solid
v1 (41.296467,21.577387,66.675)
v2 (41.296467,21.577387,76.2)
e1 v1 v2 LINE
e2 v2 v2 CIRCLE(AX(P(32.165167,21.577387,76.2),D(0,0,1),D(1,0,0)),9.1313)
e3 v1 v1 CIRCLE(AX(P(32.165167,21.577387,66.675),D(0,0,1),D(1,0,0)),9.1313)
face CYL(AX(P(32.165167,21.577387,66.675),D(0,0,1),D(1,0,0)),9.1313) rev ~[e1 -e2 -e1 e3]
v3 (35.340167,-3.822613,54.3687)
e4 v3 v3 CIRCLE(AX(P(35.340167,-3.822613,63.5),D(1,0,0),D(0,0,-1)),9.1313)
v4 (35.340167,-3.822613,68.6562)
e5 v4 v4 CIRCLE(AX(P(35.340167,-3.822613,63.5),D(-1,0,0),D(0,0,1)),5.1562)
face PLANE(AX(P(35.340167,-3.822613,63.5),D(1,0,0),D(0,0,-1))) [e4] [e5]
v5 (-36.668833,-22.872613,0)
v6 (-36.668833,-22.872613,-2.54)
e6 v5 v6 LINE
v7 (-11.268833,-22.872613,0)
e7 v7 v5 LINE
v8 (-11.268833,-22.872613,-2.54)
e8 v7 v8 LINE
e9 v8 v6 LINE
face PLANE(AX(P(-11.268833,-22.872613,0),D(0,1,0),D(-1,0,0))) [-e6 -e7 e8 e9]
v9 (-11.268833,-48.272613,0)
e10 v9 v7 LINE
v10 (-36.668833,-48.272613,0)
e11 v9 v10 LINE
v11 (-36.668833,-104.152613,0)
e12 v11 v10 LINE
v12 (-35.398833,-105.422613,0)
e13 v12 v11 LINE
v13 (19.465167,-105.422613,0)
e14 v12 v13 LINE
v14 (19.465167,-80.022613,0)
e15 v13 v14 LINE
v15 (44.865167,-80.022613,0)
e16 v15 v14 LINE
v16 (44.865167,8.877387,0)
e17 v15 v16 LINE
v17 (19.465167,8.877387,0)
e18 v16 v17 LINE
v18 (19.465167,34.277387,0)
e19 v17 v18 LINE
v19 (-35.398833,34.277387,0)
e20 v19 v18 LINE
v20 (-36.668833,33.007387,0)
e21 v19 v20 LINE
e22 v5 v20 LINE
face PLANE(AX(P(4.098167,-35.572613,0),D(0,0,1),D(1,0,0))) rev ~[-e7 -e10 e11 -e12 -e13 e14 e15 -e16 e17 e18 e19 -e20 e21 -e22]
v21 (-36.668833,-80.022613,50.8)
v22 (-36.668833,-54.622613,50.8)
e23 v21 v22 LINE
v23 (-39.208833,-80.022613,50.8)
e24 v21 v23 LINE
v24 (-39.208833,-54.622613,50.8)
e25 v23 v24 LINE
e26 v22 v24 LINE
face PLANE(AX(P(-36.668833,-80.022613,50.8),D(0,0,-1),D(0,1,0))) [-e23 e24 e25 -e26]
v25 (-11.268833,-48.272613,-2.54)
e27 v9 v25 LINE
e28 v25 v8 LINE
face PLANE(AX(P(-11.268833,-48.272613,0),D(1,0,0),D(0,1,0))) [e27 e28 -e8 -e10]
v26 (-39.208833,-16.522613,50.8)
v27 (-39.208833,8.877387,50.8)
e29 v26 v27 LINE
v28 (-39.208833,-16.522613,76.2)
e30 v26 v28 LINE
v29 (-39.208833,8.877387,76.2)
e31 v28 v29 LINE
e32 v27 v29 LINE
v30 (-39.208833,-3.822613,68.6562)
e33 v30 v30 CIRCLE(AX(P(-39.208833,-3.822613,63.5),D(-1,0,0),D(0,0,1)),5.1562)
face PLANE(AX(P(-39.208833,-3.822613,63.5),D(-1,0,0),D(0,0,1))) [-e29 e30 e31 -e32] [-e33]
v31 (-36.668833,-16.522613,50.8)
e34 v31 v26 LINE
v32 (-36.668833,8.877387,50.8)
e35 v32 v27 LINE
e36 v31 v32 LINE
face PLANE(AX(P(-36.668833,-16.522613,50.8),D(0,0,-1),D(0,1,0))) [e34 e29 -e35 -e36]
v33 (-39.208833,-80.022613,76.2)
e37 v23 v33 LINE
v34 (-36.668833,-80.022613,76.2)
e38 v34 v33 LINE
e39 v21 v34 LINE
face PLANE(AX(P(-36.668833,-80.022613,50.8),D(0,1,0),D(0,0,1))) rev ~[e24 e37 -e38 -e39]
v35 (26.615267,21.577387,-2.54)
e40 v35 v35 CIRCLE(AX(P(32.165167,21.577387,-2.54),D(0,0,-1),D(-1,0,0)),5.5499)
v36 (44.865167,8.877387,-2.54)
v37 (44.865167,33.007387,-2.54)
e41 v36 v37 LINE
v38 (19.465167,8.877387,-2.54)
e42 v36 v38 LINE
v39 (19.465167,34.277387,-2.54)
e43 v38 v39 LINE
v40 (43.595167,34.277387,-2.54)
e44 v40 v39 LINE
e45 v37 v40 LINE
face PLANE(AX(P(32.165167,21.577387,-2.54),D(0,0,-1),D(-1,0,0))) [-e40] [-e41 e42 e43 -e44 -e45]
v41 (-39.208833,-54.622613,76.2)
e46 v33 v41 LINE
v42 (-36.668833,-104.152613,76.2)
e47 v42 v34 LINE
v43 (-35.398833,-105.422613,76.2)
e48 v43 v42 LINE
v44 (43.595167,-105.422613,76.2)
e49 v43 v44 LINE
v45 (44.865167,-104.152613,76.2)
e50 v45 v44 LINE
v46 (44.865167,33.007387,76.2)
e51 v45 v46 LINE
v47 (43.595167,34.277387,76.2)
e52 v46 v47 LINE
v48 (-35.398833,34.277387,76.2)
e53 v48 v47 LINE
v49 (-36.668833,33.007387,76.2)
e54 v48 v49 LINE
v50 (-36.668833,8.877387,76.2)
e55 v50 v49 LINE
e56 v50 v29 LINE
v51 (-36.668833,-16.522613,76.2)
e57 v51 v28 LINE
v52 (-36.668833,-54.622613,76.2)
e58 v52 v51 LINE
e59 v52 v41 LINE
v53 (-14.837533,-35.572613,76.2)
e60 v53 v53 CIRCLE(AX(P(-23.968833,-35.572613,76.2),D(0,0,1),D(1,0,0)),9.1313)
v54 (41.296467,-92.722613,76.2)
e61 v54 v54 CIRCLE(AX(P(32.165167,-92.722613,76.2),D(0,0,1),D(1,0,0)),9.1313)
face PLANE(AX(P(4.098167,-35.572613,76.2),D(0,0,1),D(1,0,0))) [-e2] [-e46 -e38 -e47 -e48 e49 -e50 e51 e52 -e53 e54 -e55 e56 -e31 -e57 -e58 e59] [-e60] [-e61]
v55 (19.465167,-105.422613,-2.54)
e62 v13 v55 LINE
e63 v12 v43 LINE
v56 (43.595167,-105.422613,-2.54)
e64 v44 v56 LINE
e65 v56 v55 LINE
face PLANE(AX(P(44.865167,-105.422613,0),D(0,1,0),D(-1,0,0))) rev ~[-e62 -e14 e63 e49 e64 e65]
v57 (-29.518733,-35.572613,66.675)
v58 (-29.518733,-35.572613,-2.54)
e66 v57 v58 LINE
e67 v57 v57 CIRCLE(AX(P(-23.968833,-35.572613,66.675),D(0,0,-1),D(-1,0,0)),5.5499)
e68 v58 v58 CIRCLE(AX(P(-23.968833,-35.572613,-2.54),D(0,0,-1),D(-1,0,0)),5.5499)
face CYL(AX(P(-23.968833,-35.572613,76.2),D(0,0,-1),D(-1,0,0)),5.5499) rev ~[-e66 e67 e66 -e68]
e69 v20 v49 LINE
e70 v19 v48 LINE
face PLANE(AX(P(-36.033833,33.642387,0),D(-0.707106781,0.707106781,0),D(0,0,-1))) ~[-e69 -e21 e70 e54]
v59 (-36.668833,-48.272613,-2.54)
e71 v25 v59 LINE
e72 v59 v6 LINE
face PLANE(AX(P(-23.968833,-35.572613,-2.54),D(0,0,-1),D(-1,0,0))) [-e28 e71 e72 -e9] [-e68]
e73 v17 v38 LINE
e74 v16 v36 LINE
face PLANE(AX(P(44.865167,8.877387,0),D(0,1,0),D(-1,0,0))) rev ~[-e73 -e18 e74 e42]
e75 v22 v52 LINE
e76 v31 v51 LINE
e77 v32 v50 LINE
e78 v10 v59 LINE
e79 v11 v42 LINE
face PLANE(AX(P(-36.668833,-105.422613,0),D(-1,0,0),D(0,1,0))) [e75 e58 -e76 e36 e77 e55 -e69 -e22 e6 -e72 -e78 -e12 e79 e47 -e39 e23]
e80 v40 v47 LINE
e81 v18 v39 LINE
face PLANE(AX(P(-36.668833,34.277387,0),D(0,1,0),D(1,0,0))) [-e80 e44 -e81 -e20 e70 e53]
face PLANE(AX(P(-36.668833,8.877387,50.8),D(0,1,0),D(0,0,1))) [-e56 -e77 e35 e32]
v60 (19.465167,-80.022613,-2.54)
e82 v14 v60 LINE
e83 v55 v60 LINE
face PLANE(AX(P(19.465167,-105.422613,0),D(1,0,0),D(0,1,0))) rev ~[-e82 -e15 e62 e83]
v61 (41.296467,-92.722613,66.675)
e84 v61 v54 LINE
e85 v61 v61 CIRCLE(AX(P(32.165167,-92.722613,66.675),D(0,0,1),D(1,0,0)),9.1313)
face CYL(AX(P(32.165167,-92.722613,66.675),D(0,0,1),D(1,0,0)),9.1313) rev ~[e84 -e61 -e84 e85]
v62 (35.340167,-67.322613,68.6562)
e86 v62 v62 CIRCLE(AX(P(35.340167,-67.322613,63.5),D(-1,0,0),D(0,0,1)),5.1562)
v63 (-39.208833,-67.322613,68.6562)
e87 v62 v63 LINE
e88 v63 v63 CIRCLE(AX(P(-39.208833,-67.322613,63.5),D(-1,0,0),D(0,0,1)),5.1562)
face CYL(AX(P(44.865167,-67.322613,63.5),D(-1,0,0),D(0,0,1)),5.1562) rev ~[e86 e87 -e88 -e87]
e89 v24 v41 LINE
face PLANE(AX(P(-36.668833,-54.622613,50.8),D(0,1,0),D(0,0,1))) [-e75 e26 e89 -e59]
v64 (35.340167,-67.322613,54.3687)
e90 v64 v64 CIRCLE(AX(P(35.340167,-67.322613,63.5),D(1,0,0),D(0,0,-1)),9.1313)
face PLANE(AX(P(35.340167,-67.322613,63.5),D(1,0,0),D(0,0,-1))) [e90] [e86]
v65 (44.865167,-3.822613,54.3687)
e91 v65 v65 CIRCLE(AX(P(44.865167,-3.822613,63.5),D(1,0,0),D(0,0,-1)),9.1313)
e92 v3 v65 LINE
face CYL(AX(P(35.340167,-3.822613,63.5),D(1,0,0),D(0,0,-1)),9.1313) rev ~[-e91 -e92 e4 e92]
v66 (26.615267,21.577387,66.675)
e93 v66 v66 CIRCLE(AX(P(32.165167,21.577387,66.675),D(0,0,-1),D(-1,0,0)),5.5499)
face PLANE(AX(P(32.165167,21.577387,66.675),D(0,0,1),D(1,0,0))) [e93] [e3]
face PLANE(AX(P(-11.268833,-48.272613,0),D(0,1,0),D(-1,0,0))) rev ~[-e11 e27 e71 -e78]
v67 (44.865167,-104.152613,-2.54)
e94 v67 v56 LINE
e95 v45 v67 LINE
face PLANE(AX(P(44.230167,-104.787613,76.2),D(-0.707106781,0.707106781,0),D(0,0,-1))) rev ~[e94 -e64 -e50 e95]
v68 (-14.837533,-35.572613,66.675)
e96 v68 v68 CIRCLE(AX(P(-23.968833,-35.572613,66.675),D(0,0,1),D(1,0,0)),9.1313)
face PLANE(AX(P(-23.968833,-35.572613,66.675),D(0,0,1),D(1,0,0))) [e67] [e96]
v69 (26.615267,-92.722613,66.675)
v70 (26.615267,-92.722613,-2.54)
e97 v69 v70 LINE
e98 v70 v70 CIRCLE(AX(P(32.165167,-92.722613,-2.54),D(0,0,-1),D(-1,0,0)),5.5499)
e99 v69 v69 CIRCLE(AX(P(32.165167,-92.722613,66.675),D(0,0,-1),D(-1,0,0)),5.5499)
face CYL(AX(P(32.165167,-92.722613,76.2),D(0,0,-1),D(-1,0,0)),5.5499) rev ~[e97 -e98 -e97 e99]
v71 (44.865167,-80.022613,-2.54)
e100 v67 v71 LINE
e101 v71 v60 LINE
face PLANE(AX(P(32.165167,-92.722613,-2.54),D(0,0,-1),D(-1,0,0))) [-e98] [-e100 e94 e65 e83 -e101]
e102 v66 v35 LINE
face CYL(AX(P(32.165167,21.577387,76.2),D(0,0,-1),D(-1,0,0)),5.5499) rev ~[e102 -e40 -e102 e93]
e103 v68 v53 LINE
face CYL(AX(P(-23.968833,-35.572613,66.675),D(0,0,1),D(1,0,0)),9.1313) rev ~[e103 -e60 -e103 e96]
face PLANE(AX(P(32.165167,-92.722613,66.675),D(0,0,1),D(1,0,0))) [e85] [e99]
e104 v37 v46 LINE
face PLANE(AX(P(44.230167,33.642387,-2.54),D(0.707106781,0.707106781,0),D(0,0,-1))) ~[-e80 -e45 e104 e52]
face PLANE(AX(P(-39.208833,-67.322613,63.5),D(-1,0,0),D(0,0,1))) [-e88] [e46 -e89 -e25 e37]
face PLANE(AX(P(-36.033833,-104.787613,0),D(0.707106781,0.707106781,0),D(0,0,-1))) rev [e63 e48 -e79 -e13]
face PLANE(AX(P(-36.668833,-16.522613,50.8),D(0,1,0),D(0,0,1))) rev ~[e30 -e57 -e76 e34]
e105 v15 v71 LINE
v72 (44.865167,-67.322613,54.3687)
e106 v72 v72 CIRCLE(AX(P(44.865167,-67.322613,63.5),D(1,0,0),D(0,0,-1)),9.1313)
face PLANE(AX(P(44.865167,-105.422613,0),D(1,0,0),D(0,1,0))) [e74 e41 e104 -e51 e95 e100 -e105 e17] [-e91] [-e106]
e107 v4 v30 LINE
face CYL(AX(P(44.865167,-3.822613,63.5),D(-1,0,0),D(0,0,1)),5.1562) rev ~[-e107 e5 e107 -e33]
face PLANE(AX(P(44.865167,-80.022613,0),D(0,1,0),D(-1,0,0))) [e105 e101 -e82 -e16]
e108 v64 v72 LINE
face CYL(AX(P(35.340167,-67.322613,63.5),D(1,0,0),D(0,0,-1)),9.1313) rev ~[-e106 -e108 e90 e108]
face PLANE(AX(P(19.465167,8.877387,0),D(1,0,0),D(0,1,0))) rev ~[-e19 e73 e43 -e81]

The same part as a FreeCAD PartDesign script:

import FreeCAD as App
import Part
import Sketcher

V = App.Vector
Q = App.Units.Quantity


def edges_at(feature, points):
    """Names of the edges that pass closest to the given points."""
    edges = feature.Shape.Edges
    near = lambda p: min(range(len(edges)), key=lambda i: edges[i].distToShape(Part.Vertex(*p))[0])
    return sorted({f"Edge{near(p) + 1}" for p in points})


def add_polygon(sketch, points):
    """Adds a closed chain of lines whose ends are joined by coincident constraints."""
    first, n = sketch.GeometryCount, len(points)
    for a, b in zip(points, points[1:] + points[:1]):
        sketch.addGeometry(Part.LineSegment(App.Vector(*a, 0), App.Vector(*b, 0)), False)
    for i in range(n):
        sketch.addConstraint(Sketcher.Constraint("Coincident", first + i, 2, first + (i + 1) % n, 1))

doc = App.newDocument("Part")
body = doc.addObject("PartDesign::Body", "Body")

# Sketch on XY plane
sketch1 = doc.addObject("Sketcher::SketchObject", "Sketch")
body.addObject(sketch1)
sketch1.AttachmentSupport = (doc.XY_Plane, [""])
sketch1.MapMode = "FlatFace"
add_polygon(sketch1, [(-37, 34), (-37, -105), (45, -105), (45, 34)])  # lines 0-3
sketch1.addConstraint(Sketcher.Constraint("Vertical", 0))
sketch1.addConstraint(Sketcher.Constraint("Horizontal", 1))
sketch1.addConstraint(Sketcher.Constraint("Vertical", 2))
sketch1.addConstraint(Sketcher.Constraint("Horizontal", 3))
sketch1.addConstraint(Sketcher.Constraint("DistanceY", 0, 2, 0, 1, Q("5.5 in")))
sketch1.addConstraint(Sketcher.Constraint("DistanceX", 1, 1, 1, 2, Q("3.21 in")))
sketch1.addConstraint(Sketcher.Constraint("DistanceX", 0, 2, -1, 1, Q("36.668833 mm")))
sketch1.addConstraint(Sketcher.Constraint("DistanceY", 0, 2, -1, 1, Q("105.422613 mm")))
pad1 = doc.addObject("PartDesign::Pad", "Pad")
body.addObject(pad1)
pad1.Profile = sketch1
pad1.Length = Q("3 in")

# Sketch on XY plane
sketch2 = doc.addObject("Sketcher::SketchObject", "Sketch001")
body.addObject(sketch2)
sketch2.AttachmentSupport = (doc.XY_Plane, [""])
sketch2.MapMode = "FlatFace"
add_polygon(sketch2, [(45, -80), (45, -105), (19, -105), (19, -80)])  # lines 0-3
add_polygon(sketch2, [(45, 34), (45, 9), (19, 9), (19, 34)])  # lines 4-7
add_polygon(sketch2, [(-11, -23), (-11, -48), (-37, -48), (-37, -23)])  # lines 8-11
sketch2.addConstraint(Sketcher.Constraint("Vertical", 0))
sketch2.addConstraint(Sketcher.Constraint("Horizontal", 1))
sketch2.addConstraint(Sketcher.Constraint("Vertical", 2))
sketch2.addConstraint(Sketcher.Constraint("Horizontal", 3))
sketch2.addConstraint(Sketcher.Constraint("Vertical", 4))
sketch2.addConstraint(Sketcher.Constraint("Horizontal", 5))
sketch2.addConstraint(Sketcher.Constraint("Vertical", 6))
sketch2.addConstraint(Sketcher.Constraint("Horizontal", 7))
sketch2.addConstraint(Sketcher.Constraint("Vertical", 8))
sketch2.addConstraint(Sketcher.Constraint("Horizontal", 9))
sketch2.addConstraint(Sketcher.Constraint("Vertical", 10))
sketch2.addConstraint(Sketcher.Constraint("Horizontal", 11))
sketch2.addConstraint(Sketcher.Constraint("Vertical", 3, 2, 4, 2))
sketch2.addConstraint(Sketcher.Constraint("Vertical", 2, 2, 5, 2))
sketch2.addConstraint(Sketcher.Constraint("Equal", 7, 9))
sketch2.addConstraint(Sketcher.Constraint("Equal", 11, 0))
sketch2.addConstraint(Sketcher.Constraint("Equal", 2, 4))
sketch2.addConstraint(Sketcher.Constraint("Equal", 6, 8))
sketch2.addConstraint(Sketcher.Constraint("DistanceX", 1, 2, 1, 1, Q("1 in")))
sketch2.addConstraint(Sketcher.Constraint("DistanceY", 3, 2, 4, 2, Q("3.5 in")))
sketch2.addConstraint(Sketcher.Constraint("DistanceX", 8, 2, 2, 2, Q("1.21 in")))
sketch2.addConstraint(Sketcher.Constraint("DistanceY", 2, 2, 8, 2, Q("1.25 in")))
sketch2.addConstraint(Sketcher.Constraint("DistanceX", -1, 1, 0, 2, Q("44.865167 mm")))
sketch2.addConstraint(Sketcher.Constraint("DistanceY", 0, 2, -1, 1, Q("105.422613 mm")))
pad2 = doc.addObject("PartDesign::Pad", "Pad001")
body.addObject(pad2)
pad2.Profile = sketch2
pad2.Length = Q("0.1 in")
pad2.Reversed = True

# Sketch on XY plane
sketch3 = doc.addObject("Sketcher::SketchObject", "Sketch002")
body.addObject(sketch3)
sketch3.AttachmentSupport = (doc.XY_Plane, [""])
sketch3.MapMode = "FlatFace"
sketch3.AttachmentOffset = App.Placement(V(0, 0, 3 * 25.4), App.Rotation())
sketch3.addGeometry(Part.Circle(V(-24, -36, 0), V(0, 0, 1), 6), False)
sketch3.addGeometry(Part.Circle(V(32, 22, 0), V(0, 0, 1), 6), False)
sketch3.addGeometry(Part.Circle(V(32, -93, 0), V(0, 0, 1), 6), False)
sketch3.addConstraint(Sketcher.Constraint("Equal", 0, 1))
sketch3.addConstraint(Sketcher.Constraint("Equal", 1, 2))
sketch3.addConstraint(Sketcher.Constraint("Vertical", 1, 3, 2, 3))
sketch3.addConstraint(Sketcher.Constraint("Diameter", 0, Q("0.437 in")))
sketch3.addConstraint(Sketcher.Constraint("DistanceY", 2, 3, 1, 3, Q("4.5 in")))
sketch3.addConstraint(Sketcher.Constraint("DistanceX", 0, 3, 1, 3, Q("2.21 in")))
sketch3.addConstraint(Sketcher.Constraint("DistanceY", 0, 3, 1, 3, Q("2.25 in")))
sketch3.addConstraint(Sketcher.Constraint("DistanceX", 0, 3, -1, 1, Q("23.968833 mm")))
sketch3.addConstraint(Sketcher.Constraint("DistanceY", 0, 3, -1, 1, Q("35.572613 mm")))
doc.recompute()
hole = doc.addObject("PartDesign::Hole", "Hole")
body.addObject(hole)
hole.Profile = sketch3
hole.ThreadType = "None"
hole.Diameter = Q("0.437 in")
hole.DepthType = "ThroughAll"
hole.HoleCutType = "Counterbore"
hole.HoleCutDiameter = Q("0.719 in")
hole.HoleCutDepth = Q("0.375 in")

# Sketch on YZ plane
sketch4 = doc.addObject("Sketcher::SketchObject", "Sketch003")
body.addObject(sketch4)
sketch4.AttachmentSupport = (doc.YZ_Plane, [""])
sketch4.MapMode = "FlatFace"
sketch4.AttachmentOffset = App.Placement(V(0, 0, -36.668833), App.Rotation())
add_polygon(sketch4, [(9, 51), (-17, 51), (-17, 76), (9, 76)])  # lines 0-3
add_polygon(sketch4, [(-55, 51), (-80, 51), (-80, 76), (-55, 76)])  # lines 4-7
sketch4.addConstraint(Sketcher.Constraint("Horizontal", 0))
sketch4.addConstraint(Sketcher.Constraint("Vertical", 1))
sketch4.addConstraint(Sketcher.Constraint("Horizontal", 2))
sketch4.addConstraint(Sketcher.Constraint("Vertical", 3))
sketch4.addConstraint(Sketcher.Constraint("Horizontal", 4))
sketch4.addConstraint(Sketcher.Constraint("Vertical", 5))
sketch4.addConstraint(Sketcher.Constraint("Horizontal", 6))
sketch4.addConstraint(Sketcher.Constraint("Vertical", 7))
sketch4.addConstraint(Sketcher.Constraint("Horizontal", 3, 2, 4, 2))
sketch4.addConstraint(Sketcher.Constraint("Horizontal", 2, 2, 5, 2))
sketch4.addConstraint(Sketcher.Constraint("Equal", 2, 4))
sketch4.addConstraint(Sketcher.Constraint("Equal", 6, 1))
sketch4.addConstraint(Sketcher.Constraint("DistanceX", 0, 2, 0, 1, Q("1 in")))
sketch4.addConstraint(Sketcher.Constraint("DistanceY", -1, 1, 0, 2, Q("2 in")))
sketch4.addConstraint(Sketcher.Constraint("DistanceX", 4, 2, 0, 2, Q("2.5 in")))
sketch4.addConstraint(Sketcher.Constraint("DistanceX", 0, 2, -1, 1, Q("16.522613 mm")))
pad3 = doc.addObject("PartDesign::Pad", "Pad002")
body.addObject(pad3)
pad3.Profile = sketch4
pad3.Length = Q("0.1 in")
pad3.Reversed = True

# Sketch on YZ plane
sketch5 = doc.addObject("Sketcher::SketchObject", "Sketch004")
body.addObject(sketch5)
sketch5.AttachmentSupport = (doc.YZ_Plane, [""])
sketch5.MapMode = "FlatFace"
sketch5.AttachmentOffset = App.Placement(V(0, 0, 44.865167), App.Rotation())
sketch5.addGeometry(Part.Circle(V(-4, 64, 0), V(0, 0, 1), 5), False)
sketch5.addGeometry(Part.Circle(V(-67, 64, 0), V(0, 0, 1), 5), False)
sketch5.addConstraint(Sketcher.Constraint("Equal", 0, 1))
sketch5.addConstraint(Sketcher.Constraint("Horizontal", 0, 3, 1, 3))
sketch5.addConstraint(Sketcher.Constraint("Diameter", 0, Q("0.406 in")))
sketch5.addConstraint(Sketcher.Constraint("DistanceY", -1, 1, 0, 3, Q("2.5 in")))
sketch5.addConstraint(Sketcher.Constraint("DistanceX", 1, 3, 0, 3, Q("2.5 in")))
sketch5.addConstraint(Sketcher.Constraint("DistanceX", 0, 3, -1, 1, Q("3.822613 mm")))
doc.recompute()
hole2 = doc.addObject("PartDesign::Hole", "Hole001")
body.addObject(hole2)
hole2.Profile = sketch5
hole2.ThreadType = "None"
hole2.Diameter = Q("0.406 in")
hole2.DepthType = "ThroughAll"
hole2.HoleCutType = "Counterbore"
hole2.HoleCutDiameter = Q("0.719 in")
hole2.HoleCutDepth = Q("0.375 in")
doc.recompute()

chamfer = doc.addObject("PartDesign::Chamfer", "Chamfer")
body.addObject(chamfer)
chamfer.Base = (hole2, edges_at(hole2, [
    (44.865, 34.277, 36.83),
    (-36.669, 34.277, 38.1),
    (44.865, -105.423, 36.83),
    (-36.669, -105.423, 38.1),
]))
chamfer.Size = Q("0.05 in")

doc.recompute()
